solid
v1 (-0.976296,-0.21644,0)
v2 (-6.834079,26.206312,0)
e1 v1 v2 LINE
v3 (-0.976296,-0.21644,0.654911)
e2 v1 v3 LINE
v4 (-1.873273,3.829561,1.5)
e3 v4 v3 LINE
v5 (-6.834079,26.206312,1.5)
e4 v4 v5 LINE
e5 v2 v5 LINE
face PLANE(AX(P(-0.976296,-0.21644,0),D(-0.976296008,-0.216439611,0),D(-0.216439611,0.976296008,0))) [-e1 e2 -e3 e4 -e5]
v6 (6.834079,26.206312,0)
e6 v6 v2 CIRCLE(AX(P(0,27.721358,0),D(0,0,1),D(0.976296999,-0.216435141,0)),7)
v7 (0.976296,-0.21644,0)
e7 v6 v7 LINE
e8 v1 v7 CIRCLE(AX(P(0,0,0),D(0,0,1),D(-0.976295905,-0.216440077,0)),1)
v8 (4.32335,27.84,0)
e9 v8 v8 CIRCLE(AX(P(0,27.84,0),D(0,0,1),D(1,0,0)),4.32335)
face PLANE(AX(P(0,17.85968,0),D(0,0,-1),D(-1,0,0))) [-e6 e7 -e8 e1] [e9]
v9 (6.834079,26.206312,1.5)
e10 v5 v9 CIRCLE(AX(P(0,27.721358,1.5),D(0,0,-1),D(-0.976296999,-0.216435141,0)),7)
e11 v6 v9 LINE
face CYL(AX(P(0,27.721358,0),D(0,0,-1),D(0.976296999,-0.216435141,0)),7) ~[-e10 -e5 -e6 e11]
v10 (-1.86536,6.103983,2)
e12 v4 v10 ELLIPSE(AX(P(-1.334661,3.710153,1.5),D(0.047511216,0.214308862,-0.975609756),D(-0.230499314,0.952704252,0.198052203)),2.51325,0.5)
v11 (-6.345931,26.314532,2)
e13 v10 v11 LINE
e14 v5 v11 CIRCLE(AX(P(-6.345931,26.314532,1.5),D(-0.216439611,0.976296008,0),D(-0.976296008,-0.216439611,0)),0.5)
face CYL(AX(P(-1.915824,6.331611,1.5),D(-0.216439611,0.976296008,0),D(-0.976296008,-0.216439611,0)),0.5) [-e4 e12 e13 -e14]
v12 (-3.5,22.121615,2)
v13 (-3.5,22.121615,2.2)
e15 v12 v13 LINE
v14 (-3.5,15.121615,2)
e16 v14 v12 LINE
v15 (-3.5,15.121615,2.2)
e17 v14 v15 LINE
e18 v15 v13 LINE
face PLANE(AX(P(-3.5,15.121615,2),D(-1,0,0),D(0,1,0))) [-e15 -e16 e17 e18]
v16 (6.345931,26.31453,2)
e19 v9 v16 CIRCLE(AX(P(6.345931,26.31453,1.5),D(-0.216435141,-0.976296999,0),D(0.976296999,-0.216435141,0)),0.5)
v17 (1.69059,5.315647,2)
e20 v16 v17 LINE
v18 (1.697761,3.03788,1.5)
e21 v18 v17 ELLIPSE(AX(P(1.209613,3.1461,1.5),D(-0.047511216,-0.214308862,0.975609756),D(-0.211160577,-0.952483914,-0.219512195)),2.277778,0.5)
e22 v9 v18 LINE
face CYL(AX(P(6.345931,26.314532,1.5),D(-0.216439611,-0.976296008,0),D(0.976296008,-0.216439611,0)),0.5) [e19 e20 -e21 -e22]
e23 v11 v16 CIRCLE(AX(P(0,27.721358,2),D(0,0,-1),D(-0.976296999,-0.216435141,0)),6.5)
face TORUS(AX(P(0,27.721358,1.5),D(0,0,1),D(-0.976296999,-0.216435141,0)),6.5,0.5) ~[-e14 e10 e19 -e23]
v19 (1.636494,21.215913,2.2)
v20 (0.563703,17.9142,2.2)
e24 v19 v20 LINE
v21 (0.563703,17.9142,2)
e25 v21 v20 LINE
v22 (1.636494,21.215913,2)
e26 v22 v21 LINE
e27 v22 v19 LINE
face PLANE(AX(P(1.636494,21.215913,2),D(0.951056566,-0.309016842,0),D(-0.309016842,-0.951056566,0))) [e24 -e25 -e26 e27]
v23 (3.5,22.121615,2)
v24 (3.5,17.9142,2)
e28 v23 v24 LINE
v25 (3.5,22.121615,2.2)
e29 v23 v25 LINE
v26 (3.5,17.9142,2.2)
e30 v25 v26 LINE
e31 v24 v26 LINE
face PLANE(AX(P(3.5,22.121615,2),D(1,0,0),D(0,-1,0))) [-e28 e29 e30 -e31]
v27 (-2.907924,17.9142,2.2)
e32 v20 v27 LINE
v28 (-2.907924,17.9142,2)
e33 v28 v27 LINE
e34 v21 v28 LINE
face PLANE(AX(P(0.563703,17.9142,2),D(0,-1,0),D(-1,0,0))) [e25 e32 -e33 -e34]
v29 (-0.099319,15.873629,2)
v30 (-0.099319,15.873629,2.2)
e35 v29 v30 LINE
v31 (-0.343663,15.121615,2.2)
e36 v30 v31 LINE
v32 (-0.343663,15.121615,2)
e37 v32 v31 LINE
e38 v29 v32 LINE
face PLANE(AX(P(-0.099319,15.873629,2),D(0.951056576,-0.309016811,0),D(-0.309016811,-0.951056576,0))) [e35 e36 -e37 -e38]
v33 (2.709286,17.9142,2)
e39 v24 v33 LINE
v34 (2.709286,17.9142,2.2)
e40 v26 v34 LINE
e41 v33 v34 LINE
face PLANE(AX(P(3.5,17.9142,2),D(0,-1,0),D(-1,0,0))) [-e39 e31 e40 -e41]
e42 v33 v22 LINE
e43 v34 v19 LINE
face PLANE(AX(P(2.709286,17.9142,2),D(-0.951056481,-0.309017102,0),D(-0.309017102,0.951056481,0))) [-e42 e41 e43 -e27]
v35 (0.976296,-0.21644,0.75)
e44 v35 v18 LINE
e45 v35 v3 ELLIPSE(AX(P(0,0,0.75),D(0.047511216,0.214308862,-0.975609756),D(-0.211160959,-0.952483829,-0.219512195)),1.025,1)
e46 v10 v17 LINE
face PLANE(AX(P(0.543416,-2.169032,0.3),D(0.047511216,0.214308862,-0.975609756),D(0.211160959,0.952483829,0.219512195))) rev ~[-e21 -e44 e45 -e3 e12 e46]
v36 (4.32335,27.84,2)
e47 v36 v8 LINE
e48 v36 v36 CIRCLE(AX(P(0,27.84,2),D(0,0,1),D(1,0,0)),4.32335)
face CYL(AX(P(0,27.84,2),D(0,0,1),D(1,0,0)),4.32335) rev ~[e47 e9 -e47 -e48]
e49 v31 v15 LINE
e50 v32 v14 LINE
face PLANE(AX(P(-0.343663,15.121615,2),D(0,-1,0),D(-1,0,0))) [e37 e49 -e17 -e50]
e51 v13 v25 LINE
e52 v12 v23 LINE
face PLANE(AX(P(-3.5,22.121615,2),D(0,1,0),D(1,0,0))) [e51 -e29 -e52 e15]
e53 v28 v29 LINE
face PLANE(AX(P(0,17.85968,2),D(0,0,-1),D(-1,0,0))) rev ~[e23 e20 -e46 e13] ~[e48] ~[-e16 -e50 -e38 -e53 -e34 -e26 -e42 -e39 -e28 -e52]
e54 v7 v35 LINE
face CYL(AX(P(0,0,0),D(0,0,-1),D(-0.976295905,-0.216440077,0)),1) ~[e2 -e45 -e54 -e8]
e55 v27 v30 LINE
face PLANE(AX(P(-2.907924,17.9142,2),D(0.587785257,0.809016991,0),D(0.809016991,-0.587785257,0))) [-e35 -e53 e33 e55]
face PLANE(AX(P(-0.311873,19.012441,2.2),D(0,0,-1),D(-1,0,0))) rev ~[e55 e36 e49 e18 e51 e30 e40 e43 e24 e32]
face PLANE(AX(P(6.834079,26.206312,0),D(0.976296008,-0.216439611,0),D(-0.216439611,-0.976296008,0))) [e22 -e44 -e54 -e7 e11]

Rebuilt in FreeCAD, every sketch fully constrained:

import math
import FreeCAD as App
import Part
import Sketcher
from FreeCAD import Vector
Q = App.Units.Quantity


def edges_at(feature, points):
    """Names of the edges that pass closest to the given points."""
    edges = feature.Shape.Edges
    near = lambda p: min(range(len(edges)), key=lambda i: edges[i].distToShape(Part.Vertex(*p))[0])
    return sorted({f"Edge{near(p) + 1}" for p in points})

doc = App.newDocument("Part")
body = doc.addObject("PartDesign::Body", "Body")

sketch1 = body.newObject("Sketcher::SketchObject", "Sketch")
sketch1.AttachmentSupport = (doc.getObject("XY_Plane"), [""])
sketch1.MapMode = "FlatFace"
sketch1.addGeometry([
    Part.LineSegment(Vector(-6.8, 26.2, 0), Vector(-1, -0.2, 0)),
    Part.ArcOfCircle(Part.Circle(Vector(0, 0, 0), Vector(0, 0, 1), 1), math.radians(-167), math.radians(-13)),
    Part.LineSegment(Vector(1, -0.2, 0), Vector(6.8, 26.2, 0)),
    Part.ArcOfCircle(Part.Circle(Vector(0, 27.7, 0), Vector(0, 0, 1), 7), math.radians(-12), math.radians(192)),
], False)
sketch1.addConstraint([
    Sketcher.Constraint("Tangent", 0, 2, 1, 1),
    Sketcher.Constraint("Tangent", 1, 2, 2, 1),
    Sketcher.Constraint("Coincident", 2, 2, 3, 1),
    Sketcher.Constraint("Coincident", 3, 2, 0, 1),
    Sketcher.Constraint("Coincident", 1, 3, -1, 1),
    Sketcher.Constraint("Symmetric", 2, 2, 3, 2, -2),
    Sketcher.Constraint("Radius", 1, Q("1 mm")),
    Sketcher.Constraint("Radius", 3, Q("7 mm")),
    Sketcher.Constraint("Angle", 0, Q("-77.5 deg")),
    Sketcher.Constraint("DistanceX", -1, 1, 2, 2, Q("6.834079 mm")),
])
pad1 = body.newObject("PartDesign::Pad", "Pad")
pad1.Profile = sketch1
pad1.Length = 2

sketch2 = body.newObject("Sketcher::SketchObject", "Sketch001")
sketch2.Placement = App.Placement(Vector(0.976296, -0.21644, 0), App.Rotation(Vector(0.216439983, 0.976295925, 0), Vector(0, 0, 0.999999999), Vector(0.976295925, -0.216439983, 0), "ZXY"))
sketch2.addGeometry([
    Part.LineSegment(Vector(-2, 0.3, 0), Vector(10, 3, 0)),
    Part.LineSegment(Vector(10, 3, 0), Vector(-2, 3, 0)),
    Part.LineSegment(Vector(-2, 3, 0), Vector(-2, 0.3, 0)),
], False)
sketch2.addConstraint([
    Sketcher.Constraint("Coincident", 0, 2, 1, 1),
    Sketcher.Constraint("Coincident", 1, 2, 2, 1),
    Sketcher.Constraint("Coincident", 2, 2, 0, 1),
    Sketcher.Constraint("Horizontal", 1),
    Sketcher.Constraint("Vertical", 2),
    Sketcher.Constraint("DistanceX", 1, 2, 1, 1, Q("12 mm")),
    Sketcher.Constraint("DistanceY", 2, 2, 2, 1, Q("2.7 mm")),
    Sketcher.Constraint("DistanceX", -1, 1, 0, 2, Q("10 mm")),
    Sketcher.Constraint("DistanceY", -1, 1, 0, 2, Q("3 mm")),
])
pocket1 = body.newObject("PartDesign::Pocket", "Pocket")
pocket1.Profile = sketch2
pocket1.Length = 5

sketch3 = body.newObject("Sketcher::SketchObject", "Sketch002")
sketch3.AttachmentSupport = (doc.getObject("XY_Plane"), [""])
sketch3.MapMode = "FlatFace"
sketch3.AttachmentOffset = App.Placement(Vector(0, 0, 2), App.Rotation())
sketch3.addGeometry(Part.Circle(Vector(0, 27.8, 0), Vector(0, 0, 1), 4.3), False)
sketch3.addConstraint([
    Sketcher.Constraint("PointOnObject", 0, 3, -2),
    Sketcher.Constraint("Diameter", 0, Q("8.6467 mm")),
    Sketcher.Constraint("DistanceY", -1, 1, 0, 3, Q("27.84 mm")),
])
pocket2 = body.newObject("PartDesign::Pocket", "Pocket001")
pocket2.Profile = sketch3
pocket2.Length = 5

sketch4 = body.newObject("Sketcher::SketchObject", "Sketch003")
sketch4.AttachmentSupport = (doc.getObject("XY_Plane"), [""])
sketch4.MapMode = "FlatFace"
sketch4.AttachmentOffset = App.Placement(Vector(0, 0, 2), App.Rotation())
sketch4.addGeometry([
    Part.LineSegment(Vector(3.5, 22.1, 0), Vector(-3.5, 22.1, 0)),
    Part.LineSegment(Vector(-3.5, 22.1, 0), Vector(-3.5, 15.1, 0)),
    Part.LineSegment(Vector(-3.5, 15.1, 0), Vector(-0.3, 15.1, 0)),
    Part.LineSegment(Vector(-0.3, 15.1, 0), Vector(-0.1, 15.9, 0)),
    Part.LineSegment(Vector(-0.1, 15.9, 0), Vector(-2.9, 17.9, 0)),
    Part.LineSegment(Vector(-2.9, 17.9, 0), Vector(0.6, 17.9, 0)),
    Part.LineSegment(Vector(0.6, 17.9, 0), Vector(1.6, 21.2, 0)),
    Part.LineSegment(Vector(1.6, 21.2, 0), Vector(2.7, 17.9, 0)),
    Part.LineSegment(Vector(2.7, 17.9, 0), Vector(3.5, 17.9, 0)),
    Part.LineSegment(Vector(3.5, 17.9, 0), Vector(3.5, 22.1, 0)),
], False)
sketch4.addConstraint([
    Sketcher.Constraint("Coincident", 0, 2, 1, 1),
    Sketcher.Constraint("Coincident", 1, 2, 2, 1),
    Sketcher.Constraint("Coincident", 2, 2, 3, 1),
    Sketcher.Constraint("Coincident", 3, 2, 4, 1),
    Sketcher.Constraint("Coincident", 4, 2, 5, 1),
    Sketcher.Constraint("Coincident", 5, 2, 6, 1),
    Sketcher.Constraint("Coincident", 6, 2, 7, 1),
    Sketcher.Constraint("Coincident", 7, 2, 8, 1),
    Sketcher.Constraint("Coincident", 8, 2, 9, 1),
    Sketcher.Constraint("Coincident", 9, 2, 0, 1),
    Sketcher.Constraint("Horizontal", 0),
    Sketcher.Constraint("Vertical", 1),
    Sketcher.Constraint("Horizontal", 2),
    Sketcher.Constraint("Horizontal", 5),
    Sketcher.Constraint("Horizontal", 8),
    Sketcher.Constraint("Vertical", 9),
    Sketcher.Constraint("Parallel", 3, 6),
    Sketcher.Constraint("Horizontal", 5, 2, 7, 2),
    Sketcher.Constraint("Equal", 0, 1),
    Sketcher.Constraint("Equal", 4, 6),
    Sketcher.Constraint("Equal", 6, 7),
    Sketcher.Constraint("DistanceX", 0, 2, 0, 1, Q("7 mm")),
    Sketcher.Constraint("Angle", 3, Q("72.000011 deg")),
    Sketcher.Constraint("Angle", 4, Q("144 deg")),
    Sketcher.Constraint("DistanceX", 0, 2, -1, 1, Q("3.5 mm")),
    Sketcher.Constraint("DistanceY", -1, 1, 4, 2, Q("17.9142 mm")),
    Sketcher.Constraint("DistanceY", 6, 2, 0, 2, Q("0.905702 mm")),
    Sketcher.Constraint("DistanceX", 2, 1, 2, 2, Q("3.156337 mm")),
    Sketcher.Constraint("DistanceX", 5, 1, 5, 2, Q("3.471627 mm")),
    Sketcher.Constraint("DistanceX", 8, 1, 8, 2, Q("0.790714 mm")),
])
pad2 = body.newObject("PartDesign::Pad", "Pad001")
pad2.Profile = sketch4
pad2.Length = 0.2
doc.recompute()

fillet = body.newObject("PartDesign::Fillet", "Fillet")
fillet.Base = (pad2, edges_at(pad2, [(-4.619, 16.215, 2)]))
fillet.Radius = 0.5

doc.recompute()
